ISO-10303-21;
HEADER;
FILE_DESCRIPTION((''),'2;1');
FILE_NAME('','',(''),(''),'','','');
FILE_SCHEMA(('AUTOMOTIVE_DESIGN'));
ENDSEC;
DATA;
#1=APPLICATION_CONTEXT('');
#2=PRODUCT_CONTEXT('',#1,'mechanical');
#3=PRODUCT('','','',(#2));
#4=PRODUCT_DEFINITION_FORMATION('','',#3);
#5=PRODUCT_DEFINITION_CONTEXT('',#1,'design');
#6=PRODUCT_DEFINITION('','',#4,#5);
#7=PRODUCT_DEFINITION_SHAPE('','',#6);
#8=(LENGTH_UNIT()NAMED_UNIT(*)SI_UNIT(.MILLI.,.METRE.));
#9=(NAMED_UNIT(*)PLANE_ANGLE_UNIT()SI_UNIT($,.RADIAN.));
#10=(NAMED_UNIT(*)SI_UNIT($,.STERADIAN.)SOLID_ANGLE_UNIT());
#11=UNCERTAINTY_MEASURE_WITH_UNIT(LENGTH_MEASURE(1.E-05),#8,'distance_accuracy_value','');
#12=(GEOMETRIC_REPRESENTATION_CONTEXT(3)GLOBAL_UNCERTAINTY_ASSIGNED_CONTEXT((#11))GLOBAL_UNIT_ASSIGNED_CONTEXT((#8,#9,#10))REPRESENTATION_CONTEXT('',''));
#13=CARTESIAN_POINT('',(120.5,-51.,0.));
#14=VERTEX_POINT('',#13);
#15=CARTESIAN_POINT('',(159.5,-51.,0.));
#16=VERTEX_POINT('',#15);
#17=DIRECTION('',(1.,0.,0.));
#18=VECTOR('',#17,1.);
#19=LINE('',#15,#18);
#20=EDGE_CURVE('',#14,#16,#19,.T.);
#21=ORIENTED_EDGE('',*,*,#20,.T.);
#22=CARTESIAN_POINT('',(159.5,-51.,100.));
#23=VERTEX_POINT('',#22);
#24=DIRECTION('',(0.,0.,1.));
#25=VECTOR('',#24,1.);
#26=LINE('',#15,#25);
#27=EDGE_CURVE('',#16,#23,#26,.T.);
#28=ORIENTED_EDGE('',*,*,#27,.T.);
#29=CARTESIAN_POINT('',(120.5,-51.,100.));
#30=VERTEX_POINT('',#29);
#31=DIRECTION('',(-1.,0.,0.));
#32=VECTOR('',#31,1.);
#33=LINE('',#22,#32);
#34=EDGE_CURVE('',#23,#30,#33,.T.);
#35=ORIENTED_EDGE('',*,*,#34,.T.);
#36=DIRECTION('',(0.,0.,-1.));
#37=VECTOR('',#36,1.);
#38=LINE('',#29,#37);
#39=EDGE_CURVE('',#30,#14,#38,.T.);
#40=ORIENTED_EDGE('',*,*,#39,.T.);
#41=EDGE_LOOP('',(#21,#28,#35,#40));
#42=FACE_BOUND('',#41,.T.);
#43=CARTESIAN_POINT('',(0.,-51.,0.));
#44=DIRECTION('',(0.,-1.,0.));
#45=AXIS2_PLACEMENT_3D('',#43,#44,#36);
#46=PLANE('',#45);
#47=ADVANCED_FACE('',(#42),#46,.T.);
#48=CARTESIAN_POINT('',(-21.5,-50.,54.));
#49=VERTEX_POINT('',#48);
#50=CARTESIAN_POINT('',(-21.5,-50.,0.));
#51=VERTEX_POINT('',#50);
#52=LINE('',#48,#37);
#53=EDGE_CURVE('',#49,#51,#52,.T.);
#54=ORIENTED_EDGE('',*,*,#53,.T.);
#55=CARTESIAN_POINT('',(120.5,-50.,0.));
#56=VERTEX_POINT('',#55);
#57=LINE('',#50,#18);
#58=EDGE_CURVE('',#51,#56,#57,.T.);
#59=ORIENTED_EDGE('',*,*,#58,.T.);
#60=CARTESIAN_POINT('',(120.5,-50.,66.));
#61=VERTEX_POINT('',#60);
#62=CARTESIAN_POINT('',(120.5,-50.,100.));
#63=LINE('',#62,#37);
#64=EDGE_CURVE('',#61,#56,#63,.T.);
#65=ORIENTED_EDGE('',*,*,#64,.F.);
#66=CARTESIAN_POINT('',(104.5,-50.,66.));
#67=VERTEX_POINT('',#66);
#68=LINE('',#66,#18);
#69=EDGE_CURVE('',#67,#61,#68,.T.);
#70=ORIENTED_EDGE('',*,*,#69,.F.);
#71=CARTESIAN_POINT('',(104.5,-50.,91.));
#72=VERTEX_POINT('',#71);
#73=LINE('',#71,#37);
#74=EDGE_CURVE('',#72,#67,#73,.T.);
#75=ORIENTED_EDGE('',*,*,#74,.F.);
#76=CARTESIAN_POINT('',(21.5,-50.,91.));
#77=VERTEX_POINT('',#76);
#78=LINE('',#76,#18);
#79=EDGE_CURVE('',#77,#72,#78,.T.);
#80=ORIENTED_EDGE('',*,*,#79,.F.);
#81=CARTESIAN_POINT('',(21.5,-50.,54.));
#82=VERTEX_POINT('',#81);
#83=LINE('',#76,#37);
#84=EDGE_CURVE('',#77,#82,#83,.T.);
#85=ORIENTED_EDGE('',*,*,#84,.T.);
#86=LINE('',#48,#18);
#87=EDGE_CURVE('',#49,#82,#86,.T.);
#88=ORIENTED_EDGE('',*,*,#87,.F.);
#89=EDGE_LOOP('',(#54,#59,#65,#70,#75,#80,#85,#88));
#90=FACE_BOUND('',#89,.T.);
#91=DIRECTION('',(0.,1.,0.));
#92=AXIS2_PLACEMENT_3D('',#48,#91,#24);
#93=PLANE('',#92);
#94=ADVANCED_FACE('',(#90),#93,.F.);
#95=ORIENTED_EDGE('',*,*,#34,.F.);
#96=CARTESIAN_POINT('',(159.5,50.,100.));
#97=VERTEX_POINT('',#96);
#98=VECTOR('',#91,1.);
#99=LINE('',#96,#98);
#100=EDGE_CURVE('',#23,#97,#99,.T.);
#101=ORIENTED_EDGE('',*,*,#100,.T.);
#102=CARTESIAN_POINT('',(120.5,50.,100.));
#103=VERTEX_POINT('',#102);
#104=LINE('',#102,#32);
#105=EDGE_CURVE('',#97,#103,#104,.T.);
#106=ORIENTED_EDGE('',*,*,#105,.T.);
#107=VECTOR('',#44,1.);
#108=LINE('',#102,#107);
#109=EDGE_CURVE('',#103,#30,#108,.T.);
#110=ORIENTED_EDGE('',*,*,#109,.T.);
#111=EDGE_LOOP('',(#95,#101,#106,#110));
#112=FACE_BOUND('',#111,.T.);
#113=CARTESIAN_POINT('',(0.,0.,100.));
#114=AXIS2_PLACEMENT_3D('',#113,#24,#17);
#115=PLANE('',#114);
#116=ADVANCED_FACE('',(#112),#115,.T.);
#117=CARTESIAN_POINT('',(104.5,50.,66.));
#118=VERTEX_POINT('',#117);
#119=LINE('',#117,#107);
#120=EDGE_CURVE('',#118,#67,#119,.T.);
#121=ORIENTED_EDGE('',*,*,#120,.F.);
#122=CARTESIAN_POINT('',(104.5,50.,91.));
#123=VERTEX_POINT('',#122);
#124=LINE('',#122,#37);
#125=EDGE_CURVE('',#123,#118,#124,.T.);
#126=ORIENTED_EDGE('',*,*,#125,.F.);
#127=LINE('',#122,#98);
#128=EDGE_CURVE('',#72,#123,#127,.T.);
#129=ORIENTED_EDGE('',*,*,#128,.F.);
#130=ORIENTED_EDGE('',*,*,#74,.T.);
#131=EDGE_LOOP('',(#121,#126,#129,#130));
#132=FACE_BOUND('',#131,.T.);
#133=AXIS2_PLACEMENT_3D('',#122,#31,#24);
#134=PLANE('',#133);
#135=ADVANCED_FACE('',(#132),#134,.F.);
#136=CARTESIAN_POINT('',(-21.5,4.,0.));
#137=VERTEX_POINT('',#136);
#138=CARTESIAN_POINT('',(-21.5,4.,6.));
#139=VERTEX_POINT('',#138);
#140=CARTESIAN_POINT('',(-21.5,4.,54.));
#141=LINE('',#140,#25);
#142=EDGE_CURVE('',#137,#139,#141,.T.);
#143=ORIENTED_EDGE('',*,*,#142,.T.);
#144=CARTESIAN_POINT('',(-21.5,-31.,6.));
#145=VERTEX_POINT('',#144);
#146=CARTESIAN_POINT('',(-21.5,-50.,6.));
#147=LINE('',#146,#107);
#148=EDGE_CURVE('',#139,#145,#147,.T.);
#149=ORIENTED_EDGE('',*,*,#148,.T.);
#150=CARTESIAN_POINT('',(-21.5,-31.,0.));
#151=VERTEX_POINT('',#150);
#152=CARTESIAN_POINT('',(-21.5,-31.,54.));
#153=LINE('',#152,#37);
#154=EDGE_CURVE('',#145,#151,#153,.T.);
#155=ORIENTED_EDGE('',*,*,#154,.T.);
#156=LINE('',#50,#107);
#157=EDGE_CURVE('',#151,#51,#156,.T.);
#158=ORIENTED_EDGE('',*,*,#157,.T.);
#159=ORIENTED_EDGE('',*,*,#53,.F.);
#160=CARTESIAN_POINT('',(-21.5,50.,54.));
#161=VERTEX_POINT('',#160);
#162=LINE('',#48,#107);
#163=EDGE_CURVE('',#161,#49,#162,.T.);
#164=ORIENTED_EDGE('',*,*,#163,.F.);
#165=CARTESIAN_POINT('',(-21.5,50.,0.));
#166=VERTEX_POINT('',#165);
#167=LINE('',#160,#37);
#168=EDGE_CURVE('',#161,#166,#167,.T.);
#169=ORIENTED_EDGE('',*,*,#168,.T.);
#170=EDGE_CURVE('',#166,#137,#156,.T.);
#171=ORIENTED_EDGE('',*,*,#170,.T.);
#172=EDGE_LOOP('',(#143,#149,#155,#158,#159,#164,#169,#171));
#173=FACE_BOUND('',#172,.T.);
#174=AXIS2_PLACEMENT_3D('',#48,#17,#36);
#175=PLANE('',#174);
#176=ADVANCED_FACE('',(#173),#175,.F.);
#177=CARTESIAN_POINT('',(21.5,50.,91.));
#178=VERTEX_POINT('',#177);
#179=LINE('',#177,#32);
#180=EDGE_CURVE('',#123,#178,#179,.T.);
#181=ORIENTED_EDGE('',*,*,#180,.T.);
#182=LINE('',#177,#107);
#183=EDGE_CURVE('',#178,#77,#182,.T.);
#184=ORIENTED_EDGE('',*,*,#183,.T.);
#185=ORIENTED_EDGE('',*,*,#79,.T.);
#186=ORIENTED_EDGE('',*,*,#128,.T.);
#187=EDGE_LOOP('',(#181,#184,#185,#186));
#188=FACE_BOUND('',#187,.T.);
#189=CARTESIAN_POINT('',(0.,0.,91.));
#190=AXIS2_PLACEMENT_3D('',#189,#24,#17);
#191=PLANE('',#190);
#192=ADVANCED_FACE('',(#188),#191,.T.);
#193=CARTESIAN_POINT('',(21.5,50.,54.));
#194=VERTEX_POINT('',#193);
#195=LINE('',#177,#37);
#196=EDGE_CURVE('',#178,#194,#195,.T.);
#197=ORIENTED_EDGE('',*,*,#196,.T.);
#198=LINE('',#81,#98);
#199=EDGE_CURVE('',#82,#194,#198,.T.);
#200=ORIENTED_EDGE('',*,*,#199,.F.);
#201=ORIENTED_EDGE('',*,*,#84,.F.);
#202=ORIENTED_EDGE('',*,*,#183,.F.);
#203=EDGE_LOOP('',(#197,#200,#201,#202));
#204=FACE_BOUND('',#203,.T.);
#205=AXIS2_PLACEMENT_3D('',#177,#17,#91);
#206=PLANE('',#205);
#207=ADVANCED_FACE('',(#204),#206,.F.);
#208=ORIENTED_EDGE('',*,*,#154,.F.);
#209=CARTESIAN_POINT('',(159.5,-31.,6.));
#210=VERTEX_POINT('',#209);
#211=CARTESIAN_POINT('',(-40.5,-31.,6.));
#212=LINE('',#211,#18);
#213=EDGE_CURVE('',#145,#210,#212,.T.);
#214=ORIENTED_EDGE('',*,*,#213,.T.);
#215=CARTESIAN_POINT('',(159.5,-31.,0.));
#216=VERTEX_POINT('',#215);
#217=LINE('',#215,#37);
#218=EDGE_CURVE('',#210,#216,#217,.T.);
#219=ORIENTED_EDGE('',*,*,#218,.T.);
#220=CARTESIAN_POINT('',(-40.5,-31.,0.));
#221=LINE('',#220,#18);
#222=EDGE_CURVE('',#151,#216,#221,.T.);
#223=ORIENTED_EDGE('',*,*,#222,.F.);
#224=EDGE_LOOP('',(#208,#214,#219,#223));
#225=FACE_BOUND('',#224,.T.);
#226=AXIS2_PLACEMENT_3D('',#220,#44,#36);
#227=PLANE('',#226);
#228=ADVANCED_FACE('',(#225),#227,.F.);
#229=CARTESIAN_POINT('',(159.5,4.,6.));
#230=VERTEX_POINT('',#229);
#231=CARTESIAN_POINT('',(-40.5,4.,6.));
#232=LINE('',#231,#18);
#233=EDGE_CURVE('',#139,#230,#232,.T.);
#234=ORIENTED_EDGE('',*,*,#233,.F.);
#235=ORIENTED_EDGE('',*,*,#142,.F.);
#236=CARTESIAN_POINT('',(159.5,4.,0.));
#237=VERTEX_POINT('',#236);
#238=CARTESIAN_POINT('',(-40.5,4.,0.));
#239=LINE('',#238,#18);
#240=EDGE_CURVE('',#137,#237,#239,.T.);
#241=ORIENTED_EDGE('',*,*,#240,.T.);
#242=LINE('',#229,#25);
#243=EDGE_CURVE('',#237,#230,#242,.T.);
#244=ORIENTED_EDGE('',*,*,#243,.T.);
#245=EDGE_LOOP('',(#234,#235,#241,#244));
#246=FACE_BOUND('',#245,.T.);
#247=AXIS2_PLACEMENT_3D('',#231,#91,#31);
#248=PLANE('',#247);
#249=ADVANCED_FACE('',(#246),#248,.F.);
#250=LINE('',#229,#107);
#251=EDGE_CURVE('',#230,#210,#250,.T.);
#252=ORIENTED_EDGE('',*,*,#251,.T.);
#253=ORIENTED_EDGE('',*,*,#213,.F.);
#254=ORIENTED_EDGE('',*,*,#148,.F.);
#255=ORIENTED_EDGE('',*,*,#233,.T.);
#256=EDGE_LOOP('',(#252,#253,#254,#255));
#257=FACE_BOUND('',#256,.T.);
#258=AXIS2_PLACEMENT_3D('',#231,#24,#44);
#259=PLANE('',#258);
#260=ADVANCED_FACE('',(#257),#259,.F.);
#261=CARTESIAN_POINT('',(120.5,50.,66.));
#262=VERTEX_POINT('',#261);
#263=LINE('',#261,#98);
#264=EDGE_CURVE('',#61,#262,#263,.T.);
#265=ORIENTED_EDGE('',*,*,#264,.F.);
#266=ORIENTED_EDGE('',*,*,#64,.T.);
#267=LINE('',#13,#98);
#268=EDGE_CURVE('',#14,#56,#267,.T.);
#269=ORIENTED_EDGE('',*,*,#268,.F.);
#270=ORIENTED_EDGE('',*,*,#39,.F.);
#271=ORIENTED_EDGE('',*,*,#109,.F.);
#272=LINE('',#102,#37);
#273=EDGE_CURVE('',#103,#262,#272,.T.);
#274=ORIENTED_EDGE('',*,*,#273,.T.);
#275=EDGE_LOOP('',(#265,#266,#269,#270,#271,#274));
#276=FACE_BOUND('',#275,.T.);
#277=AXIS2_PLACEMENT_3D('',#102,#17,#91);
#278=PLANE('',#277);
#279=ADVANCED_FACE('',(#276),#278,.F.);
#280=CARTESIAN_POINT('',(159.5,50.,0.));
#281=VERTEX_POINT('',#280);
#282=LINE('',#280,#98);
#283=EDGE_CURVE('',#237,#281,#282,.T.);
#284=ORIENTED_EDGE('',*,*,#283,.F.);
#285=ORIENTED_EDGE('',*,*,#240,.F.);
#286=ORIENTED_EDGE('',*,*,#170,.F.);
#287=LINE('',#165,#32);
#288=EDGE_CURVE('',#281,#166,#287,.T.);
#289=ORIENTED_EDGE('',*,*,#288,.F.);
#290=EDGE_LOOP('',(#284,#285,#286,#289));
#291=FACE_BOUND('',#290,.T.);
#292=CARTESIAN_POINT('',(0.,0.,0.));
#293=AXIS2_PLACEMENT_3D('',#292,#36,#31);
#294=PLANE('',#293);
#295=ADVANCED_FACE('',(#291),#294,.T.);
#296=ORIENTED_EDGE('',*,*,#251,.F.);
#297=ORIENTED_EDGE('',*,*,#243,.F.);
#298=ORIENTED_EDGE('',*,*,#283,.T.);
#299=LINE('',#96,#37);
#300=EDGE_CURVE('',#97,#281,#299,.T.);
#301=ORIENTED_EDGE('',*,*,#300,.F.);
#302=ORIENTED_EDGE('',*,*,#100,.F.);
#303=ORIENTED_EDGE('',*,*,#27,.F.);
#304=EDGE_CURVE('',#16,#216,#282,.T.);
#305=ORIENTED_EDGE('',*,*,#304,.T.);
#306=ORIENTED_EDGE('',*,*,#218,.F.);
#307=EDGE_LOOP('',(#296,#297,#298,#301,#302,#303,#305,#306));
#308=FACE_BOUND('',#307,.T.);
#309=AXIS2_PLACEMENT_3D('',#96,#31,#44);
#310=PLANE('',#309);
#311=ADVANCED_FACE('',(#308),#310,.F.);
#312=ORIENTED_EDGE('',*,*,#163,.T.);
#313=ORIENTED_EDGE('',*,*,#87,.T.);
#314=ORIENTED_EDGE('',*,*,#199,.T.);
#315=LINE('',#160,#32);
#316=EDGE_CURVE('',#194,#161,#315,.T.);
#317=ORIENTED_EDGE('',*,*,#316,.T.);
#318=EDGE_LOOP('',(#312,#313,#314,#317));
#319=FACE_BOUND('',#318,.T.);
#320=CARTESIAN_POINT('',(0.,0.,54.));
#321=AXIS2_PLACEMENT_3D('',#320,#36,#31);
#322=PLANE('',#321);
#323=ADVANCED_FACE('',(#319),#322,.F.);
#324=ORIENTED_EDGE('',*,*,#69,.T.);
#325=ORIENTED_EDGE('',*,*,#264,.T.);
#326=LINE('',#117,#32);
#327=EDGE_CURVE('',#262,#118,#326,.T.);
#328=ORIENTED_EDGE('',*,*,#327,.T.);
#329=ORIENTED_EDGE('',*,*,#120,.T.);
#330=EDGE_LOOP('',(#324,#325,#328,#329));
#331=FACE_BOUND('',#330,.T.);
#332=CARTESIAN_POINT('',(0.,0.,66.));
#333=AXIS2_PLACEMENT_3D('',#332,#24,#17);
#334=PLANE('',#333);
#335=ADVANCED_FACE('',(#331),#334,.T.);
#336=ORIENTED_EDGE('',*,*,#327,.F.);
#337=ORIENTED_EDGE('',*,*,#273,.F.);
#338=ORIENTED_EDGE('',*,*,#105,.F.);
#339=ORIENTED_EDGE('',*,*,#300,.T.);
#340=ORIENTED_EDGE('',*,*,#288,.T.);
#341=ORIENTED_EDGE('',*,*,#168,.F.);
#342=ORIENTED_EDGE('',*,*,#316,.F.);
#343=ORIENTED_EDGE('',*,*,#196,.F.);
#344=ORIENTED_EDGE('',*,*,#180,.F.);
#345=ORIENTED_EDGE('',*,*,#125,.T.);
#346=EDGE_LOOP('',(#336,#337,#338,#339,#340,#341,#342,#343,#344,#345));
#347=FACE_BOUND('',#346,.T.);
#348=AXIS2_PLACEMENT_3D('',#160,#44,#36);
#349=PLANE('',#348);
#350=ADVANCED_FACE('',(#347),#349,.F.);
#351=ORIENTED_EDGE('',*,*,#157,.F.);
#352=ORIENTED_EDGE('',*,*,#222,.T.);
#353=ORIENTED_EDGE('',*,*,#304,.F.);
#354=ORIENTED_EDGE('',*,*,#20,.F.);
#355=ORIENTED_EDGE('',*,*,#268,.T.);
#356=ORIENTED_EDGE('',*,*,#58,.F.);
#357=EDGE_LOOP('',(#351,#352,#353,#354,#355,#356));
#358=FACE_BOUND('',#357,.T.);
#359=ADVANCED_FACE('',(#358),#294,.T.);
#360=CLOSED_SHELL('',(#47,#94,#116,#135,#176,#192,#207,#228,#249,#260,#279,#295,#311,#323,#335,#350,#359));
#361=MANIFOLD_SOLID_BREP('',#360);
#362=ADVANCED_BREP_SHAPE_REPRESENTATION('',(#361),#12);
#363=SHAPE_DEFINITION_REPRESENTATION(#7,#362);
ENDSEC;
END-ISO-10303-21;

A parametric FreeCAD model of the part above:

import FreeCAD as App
import Part
import Sketcher
from FreeCAD import Vector
Q = App.Units.Quantity

doc = App.newDocument("Part")
params = doc.addObject("Spreadsheet::Sheet", "Params")
for row, (alias, value) in enumerate([
    ("sketch1_width", "43 mm"),
    ("sketch1_height", "100 mm"),
    ("pad1_length", "54 mm"),
    ("sketch2_width", "83 mm"),
    ("sketch2_height", "100 mm"),
    ("pad2_length", "91 mm"),
    ("sketch3_width", "16 mm"),
    ("sketch3_height", "100 mm"),
    ("pad3_length", "66 mm"),
    ("sketch4_width", "39 mm"),
    ("sketch4_height", "100 mm"),
    ("pad4_length", "100 mm"),
    ("sketch5_width", "35 mm"),
    ("sketch5_height", "6 mm"),
    ("pocket1_length", "200 mm"),
    ("sketch6_width", "39 mm"),
    ("sketch6_height", "100 mm"),
    ("pad5_length", "1 mm"),
], start=1):
    params.set(f"A{row}", alias)
    params.set(f"B{row}", "=" + value)
    params.setAlias(f"B{row}", alias)

body = doc.addObject("PartDesign::Body", "Body")

# Sketch on XY plane
sketch1 = doc.addObject("Sketcher::SketchObject", "Sketch")
body.addObject(sketch1)
sketch1.AttachmentSupport = (doc.XY_Plane, [""])
sketch1.MapMode = "FlatFace"
sketch1.addGeometry([
    Part.LineSegment(Vector(-22, 50, 0), Vector(-22, -50, 0)),
    Part.LineSegment(Vector(-22, -50, 0), Vector(22, -50, 0)),
    Part.LineSegment(Vector(22, -50, 0), Vector(22, 50, 0)),
    Part.LineSegment(Vector(22, 50, 0), Vector(-22, 50, 0)),
], False)
sketch1.addConstraint([
    Sketcher.Constraint("Coincident", 0, 2, 1, 1),
    Sketcher.Constraint("Coincident", 1, 2, 2, 1),
    Sketcher.Constraint("Coincident", 2, 2, 3, 1),
    Sketcher.Constraint("Coincident", 3, 2, 0, 1),
    Sketcher.Constraint("Vertical", 0),
    Sketcher.Constraint("Horizontal", 1),
    Sketcher.Constraint("Vertical", 2),
    Sketcher.Constraint("Horizontal", 3),
    Sketcher.Constraint("Symmetric", 0, 2, 2, 2, -1, 1),
    Sketcher.Constraint("DistanceX", 1, 1, 1, 2, Q("43 mm")),
    Sketcher.Constraint("DistanceY", 0, 2, 0, 1, Q("100 mm")),
])
sketch1.setExpression("Constraints[9]", "Params.sketch1_width")
sketch1.setExpression("Constraints[10]", "Params.sketch1_height")
pad1 = doc.addObject("PartDesign::Pad", "Pad")
body.addObject(pad1)
pad1.Profile = sketch1
pad1.setExpression("Length", "Params.pad1_length")

# Sketch on XY plane
sketch2 = doc.addObject("Sketcher::SketchObject", "Sketch001")
body.addObject(sketch2)
sketch2.AttachmentSupport = (doc.XY_Plane, [""])
sketch2.MapMode = "FlatFace"
sketch2.addGeometry([
    Part.LineSegment(Vector(22, 50, 0), Vector(22, -50, 0)),
    Part.LineSegment(Vector(22, -50, 0), Vector(104, -50, 0)),
    Part.LineSegment(Vector(104, -50, 0), Vector(104, 50, 0)),
    Part.LineSegment(Vector(104, 50, 0), Vector(22, 50, 0)),
], False)
sketch2.addConstraint([
    Sketcher.Constraint("Coincident", 0, 2, 1, 1),
    Sketcher.Constraint("Coincident", 1, 2, 2, 1),
    Sketcher.Constraint("Coincident", 2, 2, 3, 1),
    Sketcher.Constraint("Coincident", 3, 2, 0, 1),
    Sketcher.Constraint("Vertical", 0),
    Sketcher.Constraint("Horizontal", 1),
    Sketcher.Constraint("Vertical", 2),
    Sketcher.Constraint("Horizontal", 3),
    Sketcher.Constraint("DistanceX", 1, 1, 1, 2, Q("83 mm")),
    Sketcher.Constraint("DistanceY", 0, 2, 0, 1, Q("100 mm")),
    Sketcher.Constraint("DistanceY", 0, 2, -1, 1, Q("50 mm")),
    Sketcher.Constraint("DistanceX", -1, 1, 0, 2, Q("21.5 mm")),
])
sketch2.setExpression("Constraints[8]", "Params.sketch2_width")
sketch2.setExpression("Constraints[9]", "Params.sketch2_height")
pad2 = doc.addObject("PartDesign::Pad", "Pad001")
body.addObject(pad2)
pad2.Profile = sketch2
pad2.setExpression("Length", "Params.pad2_length")

# Sketch on XY plane
sketch3 = doc.addObject("Sketcher::SketchObject", "Sketch002")
body.addObject(sketch3)
sketch3.AttachmentSupport = (doc.XY_Plane, [""])
sketch3.MapMode = "FlatFace"
sketch3.addGeometry([
    Part.LineSegment(Vector(104, 50, 0), Vector(104, -50, 0)),
    Part.LineSegment(Vector(104, -50, 0), Vector(120, -50, 0)),
    Part.LineSegment(Vector(120, -50, 0), Vector(120, 50, 0)),
    Part.LineSegment(Vector(120, 50, 0), Vector(104, 50, 0)),
], False)
sketch3.addConstraint([
    Sketcher.Constraint("Coincident", 0, 2, 1, 1),
    Sketcher.Constraint("Coincident", 1, 2, 2, 1),
    Sketcher.Constraint("Coincident", 2, 2, 3, 1),
    Sketcher.Constraint("Coincident", 3, 2, 0, 1),
    Sketcher.Constraint("Vertical", 0),
    Sketcher.Constraint("Horizontal", 1),
    Sketcher.Constraint("Vertical", 2),
    Sketcher.Constraint("Horizontal", 3),
    Sketcher.Constraint("DistanceX", 1, 1, 1, 2, Q("16 mm")),
    Sketcher.Constraint("DistanceY", 0, 2, 0, 1, Q("100 mm")),
    Sketcher.Constraint("DistanceY", 0, 2, -1, 1, Q("50 mm")),
    Sketcher.Constraint("DistanceX", -1, 1, 0, 2, Q("104.5 mm")),
])
sketch3.setExpression("Constraints[8]", "Params.sketch3_width")
sketch3.setExpression("Constraints[9]", "Params.sketch3_height")
pad3 = doc.addObject("PartDesign::Pad", "Pad002")
body.addObject(pad3)
pad3.Profile = sketch3
pad3.setExpression("Length", "Params.pad3_length")

# Sketch on XY plane
sketch4 = doc.addObject("Sketcher::SketchObject", "Sketch003")
body.addObject(sketch4)
sketch4.AttachmentSupport = (doc.XY_Plane, [""])
sketch4.MapMode = "FlatFace"
sketch4.addGeometry([
    Part.LineSegment(Vector(120, 50, 0), Vector(120, -50, 0)),
    Part.LineSegment(Vector(120, -50, 0), Vector(160, -50, 0)),
    Part.LineSegment(Vector(160, -50, 0), Vector(160, 50, 0)),
    Part.LineSegment(Vector(160, 50, 0), Vector(120, 50, 0)),
], False)
sketch4.addConstraint([
    Sketcher.Constraint("Coincident", 0, 2, 1, 1),
    Sketcher.Constraint("Coincident", 1, 2, 2, 1),
    Sketcher.Constraint("Coincident", 2, 2, 3, 1),
    Sketcher.Constraint("Coincident", 3, 2, 0, 1),
    Sketcher.Constraint("Vertical", 0),
    Sketcher.Constraint("Horizontal", 1),
    Sketcher.Constraint("Vertical", 2),
    Sketcher.Constraint("Horizontal", 3),
    Sketcher.Constraint("DistanceX", 1, 1, 1, 2, Q("39 mm")),
    Sketcher.Constraint("DistanceY", 0, 2, 0, 1, Q("100 mm")),
    Sketcher.Constraint("DistanceY", 0, 2, -1, 1, Q("50 mm")),
    Sketcher.Constraint("DistanceX", -1, 1, 0, 2, Q("120.5 mm")),
])
sketch4.setExpression("Constraints[8]", "Params.sketch4_width")
sketch4.setExpression("Constraints[9]", "Params.sketch4_height")
pad4 = doc.addObject("PartDesign::Pad", "Pad003")
body.addObject(pad4)
pad4.Profile = sketch4
pad4.setExpression("Length", "Params.pad4_length")

# Sketch on YZ plane
sketch5 = doc.addObject("Sketcher::SketchObject", "Sketch004")
body.addObject(sketch5)
sketch5.AttachmentSupport = (doc.YZ_Plane, [""])
sketch5.MapMode = "FlatFace"
sketch5.AttachmentOffset = App.Placement(Vector(0, 0, 159.5), App.Rotation())
sketch5.addGeometry([
    Part.LineSegment(Vector(4, 6, 0), Vector(-31, 6, 0)),
    Part.LineSegment(Vector(-31, 6, 0), Vector(-31, 0, 0)),
    Part.LineSegment(Vector(-31, 0, 0), Vector(4, 0, 0)),
    Part.LineSegment(Vector(4, 0, 0), Vector(4, 6, 0)),
], False)
sketch5.addConstraint([
    Sketcher.Constraint("Coincident", 0, 2, 1, 1),
    Sketcher.Constraint("Coincident", 1, 2, 2, 1),
    Sketcher.Constraint("Coincident", 2, 2, 3, 1),
    Sketcher.Constraint("Coincident", 3, 2, 0, 1),
    Sketcher.Constraint("Horizontal", 0),
    Sketcher.Constraint("Vertical", 1),
    Sketcher.Constraint("Horizontal", 2),
    Sketcher.Constraint("Vertical", 3),
    Sketcher.Constraint("PointOnObject", 1, 2, -1),
    Sketcher.Constraint("DistanceX", 0, 2, 0, 1, Q("35 mm")),
    Sketcher.Constraint("DistanceY", 1, 2, 1, 1, Q("6 mm")),
    Sketcher.Constraint("DistanceX", 0, 2, -1, 1, Q("31 mm")),
])
sketch5.setExpression("Constraints[9]", "Params.sketch5_width")
sketch5.setExpression("Constraints[10]", "Params.sketch5_height")
pocket1 = doc.addObject("PartDesign::Pocket", "Pocket")
body.addObject(pocket1)
pocket1.Profile = sketch5
pocket1.setExpression("Length", "Params.pocket1_length")

# Sketch on XZ plane
sketch6 = doc.addObject("Sketcher::SketchObject", "Sketch005")
body.addObject(sketch6)
sketch6.AttachmentSupport = (doc.XZ_Plane, [""])
sketch6.MapMode = "FlatFace"
sketch6.AttachmentOffset = App.Placement(Vector(0, 0, 50), App.Rotation())
sketch6.addGeometry([
    Part.LineSegment(Vector(120, 100, 0), Vector(120, 0, 0)),
    Part.LineSegment(Vector(120, 0, 0), Vector(160, 0, 0)),
    Part.LineSegment(Vector(160, 0, 0), Vector(160, 100, 0)),
    Part.LineSegment(Vector(160, 100, 0), Vector(120, 100, 0)),
], False)
sketch6.addConstraint([
    Sketcher.Constraint("Coincident", 0, 2, 1, 1),
    Sketcher.Constraint("Coincident", 1, 2, 2, 1),
    Sketcher.Constraint("Coincident", 2, 2, 3, 1),
    Sketcher.Constraint("Coincident", 3, 2, 0, 1),
    Sketcher.Constraint("Vertical", 0),
    Sketcher.Constraint("Horizontal", 1),
    Sketcher.Constraint("Vertical", 2),
    Sketcher.Constraint("Horizontal", 3),
    Sketcher.Constraint("PointOnObject", 0, 2, -1),
    Sketcher.Constraint("DistanceX", 1, 1, 1, 2, Q("39 mm")),
    Sketcher.Constraint("DistanceY", 0, 2, 0, 1, Q("100 mm")),
    Sketcher.Constraint("DistanceX", -1, 1, 0, 2, Q("120.5 mm")),
])
sketch6.setExpression("Constraints[9]", "Params.sketch6_width")
sketch6.setExpression("Constraints[10]", "Params.sketch6_height")
pad5 = doc.addObject("PartDesign::Pad", "Pad004")
body.addObject(pad5)
pad5.Profile = sketch6
pad5.setExpression("Length", "Params.pad5_length")

doc.recompute()
